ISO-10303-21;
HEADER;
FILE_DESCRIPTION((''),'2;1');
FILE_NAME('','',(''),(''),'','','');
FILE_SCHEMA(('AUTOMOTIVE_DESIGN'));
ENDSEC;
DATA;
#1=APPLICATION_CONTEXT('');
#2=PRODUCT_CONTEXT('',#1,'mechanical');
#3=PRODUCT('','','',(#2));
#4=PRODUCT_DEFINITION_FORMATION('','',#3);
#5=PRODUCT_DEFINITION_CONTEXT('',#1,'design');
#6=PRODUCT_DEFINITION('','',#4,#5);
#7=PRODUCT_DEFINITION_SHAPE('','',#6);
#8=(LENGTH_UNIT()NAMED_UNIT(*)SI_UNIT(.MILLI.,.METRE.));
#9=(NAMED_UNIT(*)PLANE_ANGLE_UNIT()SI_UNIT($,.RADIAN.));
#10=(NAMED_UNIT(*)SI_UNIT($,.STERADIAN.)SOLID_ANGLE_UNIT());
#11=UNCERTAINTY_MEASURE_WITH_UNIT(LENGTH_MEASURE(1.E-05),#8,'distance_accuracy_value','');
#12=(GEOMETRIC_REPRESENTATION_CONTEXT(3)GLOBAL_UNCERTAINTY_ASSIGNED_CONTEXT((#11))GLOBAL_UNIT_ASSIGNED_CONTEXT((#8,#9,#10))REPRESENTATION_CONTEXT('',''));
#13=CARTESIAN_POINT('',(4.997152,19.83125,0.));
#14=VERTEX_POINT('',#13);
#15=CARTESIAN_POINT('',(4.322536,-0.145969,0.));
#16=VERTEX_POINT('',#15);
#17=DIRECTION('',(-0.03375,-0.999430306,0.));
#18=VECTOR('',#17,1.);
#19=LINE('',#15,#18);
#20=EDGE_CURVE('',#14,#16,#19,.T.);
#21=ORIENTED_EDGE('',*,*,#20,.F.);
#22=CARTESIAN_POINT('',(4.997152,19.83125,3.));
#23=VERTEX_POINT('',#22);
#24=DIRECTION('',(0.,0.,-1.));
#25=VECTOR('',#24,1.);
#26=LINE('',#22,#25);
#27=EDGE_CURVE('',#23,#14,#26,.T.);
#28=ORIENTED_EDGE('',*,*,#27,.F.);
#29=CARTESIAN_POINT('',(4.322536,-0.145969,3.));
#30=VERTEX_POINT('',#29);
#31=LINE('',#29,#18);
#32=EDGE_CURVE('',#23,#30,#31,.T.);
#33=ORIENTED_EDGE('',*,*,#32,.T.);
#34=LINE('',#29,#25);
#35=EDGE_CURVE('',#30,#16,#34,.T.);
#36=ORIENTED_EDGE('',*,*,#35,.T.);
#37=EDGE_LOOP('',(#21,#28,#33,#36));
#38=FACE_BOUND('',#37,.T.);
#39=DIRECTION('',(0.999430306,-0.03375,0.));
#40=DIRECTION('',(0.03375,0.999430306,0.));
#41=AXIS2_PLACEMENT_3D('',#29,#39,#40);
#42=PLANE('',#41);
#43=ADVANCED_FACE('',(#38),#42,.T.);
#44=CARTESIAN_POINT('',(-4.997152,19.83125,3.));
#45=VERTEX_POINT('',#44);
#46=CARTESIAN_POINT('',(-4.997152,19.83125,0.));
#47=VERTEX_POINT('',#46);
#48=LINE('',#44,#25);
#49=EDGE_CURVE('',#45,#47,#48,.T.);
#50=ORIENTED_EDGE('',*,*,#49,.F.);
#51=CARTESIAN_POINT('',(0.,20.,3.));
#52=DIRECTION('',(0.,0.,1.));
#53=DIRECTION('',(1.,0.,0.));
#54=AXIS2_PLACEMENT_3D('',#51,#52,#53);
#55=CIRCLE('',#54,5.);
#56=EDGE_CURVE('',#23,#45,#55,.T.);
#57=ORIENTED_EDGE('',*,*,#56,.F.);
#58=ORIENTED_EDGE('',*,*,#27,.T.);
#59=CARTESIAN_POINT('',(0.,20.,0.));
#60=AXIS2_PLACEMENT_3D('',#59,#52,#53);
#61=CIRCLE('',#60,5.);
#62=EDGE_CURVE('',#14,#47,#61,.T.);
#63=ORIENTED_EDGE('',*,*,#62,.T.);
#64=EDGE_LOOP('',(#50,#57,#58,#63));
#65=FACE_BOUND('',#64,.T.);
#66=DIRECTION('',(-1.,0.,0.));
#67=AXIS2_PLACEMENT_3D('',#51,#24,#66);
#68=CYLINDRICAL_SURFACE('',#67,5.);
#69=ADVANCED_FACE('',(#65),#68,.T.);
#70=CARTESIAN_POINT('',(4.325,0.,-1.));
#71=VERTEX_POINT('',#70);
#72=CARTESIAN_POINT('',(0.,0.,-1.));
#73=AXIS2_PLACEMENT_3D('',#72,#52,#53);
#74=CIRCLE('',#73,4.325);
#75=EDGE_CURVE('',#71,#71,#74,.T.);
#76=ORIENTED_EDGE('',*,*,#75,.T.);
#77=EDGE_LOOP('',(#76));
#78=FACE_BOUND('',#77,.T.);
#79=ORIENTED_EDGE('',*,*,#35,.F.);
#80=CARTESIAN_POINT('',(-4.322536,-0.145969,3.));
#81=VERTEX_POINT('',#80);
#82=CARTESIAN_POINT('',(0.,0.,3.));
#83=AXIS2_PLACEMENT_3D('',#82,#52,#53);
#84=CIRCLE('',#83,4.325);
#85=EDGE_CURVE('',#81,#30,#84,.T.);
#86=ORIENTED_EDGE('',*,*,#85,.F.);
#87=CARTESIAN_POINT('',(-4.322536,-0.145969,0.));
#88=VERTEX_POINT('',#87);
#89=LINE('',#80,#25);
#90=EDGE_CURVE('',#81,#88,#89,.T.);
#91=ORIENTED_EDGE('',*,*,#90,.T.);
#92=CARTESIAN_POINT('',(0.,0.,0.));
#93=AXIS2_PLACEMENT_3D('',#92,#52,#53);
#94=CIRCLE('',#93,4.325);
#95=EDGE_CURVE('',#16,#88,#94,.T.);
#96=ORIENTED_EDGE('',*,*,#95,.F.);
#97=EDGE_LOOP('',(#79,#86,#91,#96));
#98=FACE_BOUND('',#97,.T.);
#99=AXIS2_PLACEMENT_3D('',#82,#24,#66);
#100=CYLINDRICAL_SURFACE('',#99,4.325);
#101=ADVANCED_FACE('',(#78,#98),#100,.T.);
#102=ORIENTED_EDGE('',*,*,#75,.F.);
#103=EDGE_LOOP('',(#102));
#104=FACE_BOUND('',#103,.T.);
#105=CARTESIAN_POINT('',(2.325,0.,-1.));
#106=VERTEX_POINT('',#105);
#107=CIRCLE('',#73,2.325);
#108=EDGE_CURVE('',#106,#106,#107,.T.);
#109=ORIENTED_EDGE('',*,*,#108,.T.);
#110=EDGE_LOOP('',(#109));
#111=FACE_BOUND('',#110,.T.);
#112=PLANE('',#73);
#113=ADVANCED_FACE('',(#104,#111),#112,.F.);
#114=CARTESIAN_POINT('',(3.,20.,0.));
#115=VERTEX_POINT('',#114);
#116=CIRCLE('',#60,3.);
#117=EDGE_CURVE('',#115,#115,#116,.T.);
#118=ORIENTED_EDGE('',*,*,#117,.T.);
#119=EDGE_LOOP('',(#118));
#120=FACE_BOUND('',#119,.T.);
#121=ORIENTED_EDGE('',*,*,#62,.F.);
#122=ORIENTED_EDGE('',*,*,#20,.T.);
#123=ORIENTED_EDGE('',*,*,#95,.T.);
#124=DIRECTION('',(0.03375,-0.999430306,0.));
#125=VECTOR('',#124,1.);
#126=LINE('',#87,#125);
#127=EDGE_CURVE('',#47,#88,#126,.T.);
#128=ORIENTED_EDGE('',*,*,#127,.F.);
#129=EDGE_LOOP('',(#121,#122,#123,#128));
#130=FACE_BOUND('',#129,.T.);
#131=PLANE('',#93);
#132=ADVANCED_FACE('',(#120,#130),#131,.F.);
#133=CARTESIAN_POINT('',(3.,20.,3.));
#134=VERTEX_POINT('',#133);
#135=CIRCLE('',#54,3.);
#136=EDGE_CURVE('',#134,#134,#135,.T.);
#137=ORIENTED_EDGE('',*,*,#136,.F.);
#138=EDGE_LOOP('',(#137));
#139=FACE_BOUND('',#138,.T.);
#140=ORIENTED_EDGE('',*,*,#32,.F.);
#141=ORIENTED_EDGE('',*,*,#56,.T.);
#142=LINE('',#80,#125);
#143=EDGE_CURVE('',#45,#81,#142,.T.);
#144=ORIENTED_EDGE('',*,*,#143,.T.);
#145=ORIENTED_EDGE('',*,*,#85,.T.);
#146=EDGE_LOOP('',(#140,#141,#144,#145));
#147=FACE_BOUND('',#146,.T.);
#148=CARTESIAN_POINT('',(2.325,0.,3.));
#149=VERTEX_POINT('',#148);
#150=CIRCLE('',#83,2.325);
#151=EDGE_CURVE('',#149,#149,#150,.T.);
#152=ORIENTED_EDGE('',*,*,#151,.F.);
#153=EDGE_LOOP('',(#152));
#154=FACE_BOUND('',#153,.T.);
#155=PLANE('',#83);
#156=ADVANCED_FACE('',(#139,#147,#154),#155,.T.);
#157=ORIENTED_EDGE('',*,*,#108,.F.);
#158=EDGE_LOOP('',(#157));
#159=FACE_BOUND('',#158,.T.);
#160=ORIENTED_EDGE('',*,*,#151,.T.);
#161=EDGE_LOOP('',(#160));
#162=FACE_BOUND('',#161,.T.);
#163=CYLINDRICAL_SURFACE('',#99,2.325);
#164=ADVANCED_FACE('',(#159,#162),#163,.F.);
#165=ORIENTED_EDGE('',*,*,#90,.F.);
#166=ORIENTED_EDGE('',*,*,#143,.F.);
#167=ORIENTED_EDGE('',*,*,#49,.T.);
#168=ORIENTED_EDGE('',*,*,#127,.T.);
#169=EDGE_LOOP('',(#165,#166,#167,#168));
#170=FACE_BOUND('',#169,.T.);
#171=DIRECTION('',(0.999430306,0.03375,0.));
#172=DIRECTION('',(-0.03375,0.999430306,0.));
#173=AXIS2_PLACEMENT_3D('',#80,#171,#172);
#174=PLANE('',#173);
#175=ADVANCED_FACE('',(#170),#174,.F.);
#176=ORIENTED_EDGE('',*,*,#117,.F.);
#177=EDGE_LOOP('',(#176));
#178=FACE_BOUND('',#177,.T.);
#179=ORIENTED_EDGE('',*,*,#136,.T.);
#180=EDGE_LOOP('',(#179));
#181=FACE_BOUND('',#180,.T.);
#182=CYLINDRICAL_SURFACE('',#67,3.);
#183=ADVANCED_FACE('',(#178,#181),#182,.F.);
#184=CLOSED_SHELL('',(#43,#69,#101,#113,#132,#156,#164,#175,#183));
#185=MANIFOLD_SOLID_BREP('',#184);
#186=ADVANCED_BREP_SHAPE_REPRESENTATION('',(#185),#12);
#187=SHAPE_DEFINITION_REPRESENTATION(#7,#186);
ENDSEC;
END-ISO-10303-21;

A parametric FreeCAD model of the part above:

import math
import FreeCAD as App
import Part
import Sketcher

V = App.Vector

doc = App.newDocument("Part")
body = doc.addObject("PartDesign::Body", "Body")

# Sketch on XY plane
sketch1 = body.newObject("Sketcher::SketchObject", "Sketch")
sketch1.AttachmentSupport = (doc.getObject("XY_Plane"), [""])
sketch1.MapMode = "FlatFace"
sketch1.addGeometry([
    Part.LineSegment(V(-4.997152, 19.83125, 0), V(-4.322536, -0.145969, 0)),  # 0
    Part.ArcOfCircle(Part.Circle(V(0, 0, 0), V(0, 0, 1), 4.325), math.radians(-178.0659), math.radians(-1.9341)),  # 1
    Part.LineSegment(V(4.322536, -0.145969, 0), V(4.997152, 19.83125, 0)),  # 2
    Part.ArcOfCircle(Part.Circle(V(0, 20, 0), V(0, 0, 1), 5), math.radians(-1.9341), math.radians(181.9341)),  # 3
    Part.Circle(V(0, 0, 0), V(0, 0, 1), 2.325),  # 4
    Part.Circle(V(0, 20, 0), V(0, 0, 1), 3),  # 5
], False)
sketch1.addConstraint([
    Sketcher.Constraint("Tangent", 0, 2, 1, 1),
    Sketcher.Constraint("Tangent", 1, 2, 2, 1),
    Sketcher.Constraint("Tangent", 2, 2, 3, 1),
    Sketcher.Constraint("Tangent", 3, 2, 0, 1),
    Sketcher.Constraint("Coincident", 1, 3, -1, 1),
    Sketcher.Constraint("Coincident", 4, 3, -1, 1),
    Sketcher.Constraint("Coincident", 5, 3, 3, 3),
    Sketcher.Constraint("PointOnObject", 3, 3, -2),
    Sketcher.Constraint("Diameter", 5, 6.0),
    Sketcher.Constraint("Radius", 3, 5.0),
    Sketcher.Constraint("Diameter", 4, 4.65),
    Sketcher.Constraint("DistanceY", -1, 1, 3, 3, 20.0),
    Sketcher.Constraint("Radius", 1, 4.325),
])
pad1 = body.newObject("PartDesign::Pad", "Pad")
pad1.Profile = sketch1
pad1.Length = 3

# Sketch on XY plane
sketch2 = body.newObject("Sketcher::SketchObject", "Sketch001")
sketch2.AttachmentSupport = (doc.getObject("XY_Plane"), [""])
sketch2.MapMode = "FlatFace"
sketch2.AttachmentOffset = App.Placement(V(0, 0, -1), App.Rotation())
sketch2.addGeometry([
    Part.Circle(V(0, 0, 0), V(0, 0, 1), 4.325),
    Part.Circle(V(0, 0, 0), V(0, 0, 1), 2.325),
], False)
sketch2.addConstraint([
    Sketcher.Constraint("Coincident", 0, 3, -1, 1),
    Sketcher.Constraint("Coincident", 1, 3, -1, 1),
    Sketcher.Constraint("Diameter", 0, 8.65),
    Sketcher.Constraint("Diameter", 1, 4.65),
])
pad2 = body.newObject("PartDesign::Pad", "Pad001")
pad2.Profile = sketch2
pad2.Length = 1

doc.recompute()
